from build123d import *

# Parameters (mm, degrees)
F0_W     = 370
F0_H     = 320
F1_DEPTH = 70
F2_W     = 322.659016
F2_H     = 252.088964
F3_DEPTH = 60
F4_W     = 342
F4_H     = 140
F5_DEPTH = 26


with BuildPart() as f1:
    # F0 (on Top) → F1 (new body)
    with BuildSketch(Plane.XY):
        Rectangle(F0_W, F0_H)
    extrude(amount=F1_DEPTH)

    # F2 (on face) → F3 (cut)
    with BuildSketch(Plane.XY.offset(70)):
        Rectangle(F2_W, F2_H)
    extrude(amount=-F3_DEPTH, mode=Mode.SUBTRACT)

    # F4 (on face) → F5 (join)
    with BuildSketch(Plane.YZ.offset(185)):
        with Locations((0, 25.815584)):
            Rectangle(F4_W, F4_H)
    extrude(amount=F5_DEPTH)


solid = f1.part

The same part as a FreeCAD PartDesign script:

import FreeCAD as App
import Part
import Sketcher

doc = App.newDocument("Part")
body = doc.addObject("PartDesign::Body", "Body")

# Sketch on XY plane
sketch1 = body.newObject("Sketcher::SketchObject", "Sketch")
sketch1.AttachmentSupport = (doc.getObject("XY_Plane"), [""])
sketch1.MapMode = "FlatFace"
sketch1.addGeometry([
    Part.LineSegment(App.Vector(-185, 160, 0), App.Vector(-185, -160, 0)),
    Part.LineSegment(App.Vector(-185, -160, 0), App.Vector(185, -160, 0)),
    Part.LineSegment(App.Vector(185, -160, 0), App.Vector(185, 160, 0)),
    Part.LineSegment(App.Vector(185, 160, 0), App.Vector(-185, 160, 0)),
], False)
sketch1.addConstraint([
    Sketcher.Constraint("Coincident", 0, 2, 1, 1),
    Sketcher.Constraint("Coincident", 1, 2, 2, 1),
    Sketcher.Constraint("Coincident", 2, 2, 3, 1),
    Sketcher.Constraint("Coincident", 3, 2, 0, 1),
    Sketcher.Constraint("Vertical", 0),
    Sketcher.Constraint("Horizontal", 1),
    Sketcher.Constraint("Vertical", 2),
    Sketcher.Constraint("Horizontal", 3),
    Sketcher.Constraint("Symmetric", 0, 2, 2, 2, -1, 1),
    Sketcher.Constraint("DistanceX", 1, 1, 1, 2, 370.0),
    Sketcher.Constraint("DistanceY", 0, 2, 0, 1, 320.0),
])
pad1 = body.newObject("PartDesign::Pad", "Pad")
pad1.Profile = sketch1
pad1.Length = 70

# Sketch on XY plane
sketch2 = body.newObject("Sketcher::SketchObject", "Sketch001")
sketch2.AttachmentSupport = (doc.getObject("XY_Plane"), [""])
sketch2.MapMode = "FlatFace"
sketch2.AttachmentOffset = App.Placement(App.Vector(0, 0, 70), App.Rotation())
sketch2.addGeometry([
    Part.LineSegment(App.Vector(-161, 126, 0), App.Vector(-161, -126, 0)),
    Part.LineSegment(App.Vector(-161, -126, 0), App.Vector(161, -126, 0)),
    Part.LineSegment(App.Vector(161, -126, 0), App.Vector(161, 126, 0)),
    Part.LineSegment(App.Vector(161, 126, 0), App.Vector(-161, 126, 0)),
], False)
sketch2.addConstraint([
    Sketcher.Constraint("Coincident", 0, 2, 1, 1),
    Sketcher.Constraint("Coincident", 1, 2, 2, 1),
    Sketcher.Constraint("Coincident", 2, 2, 3, 1),
    Sketcher.Constraint("Coincident", 3, 2, 0, 1),
    Sketcher.Constraint("Vertical", 0),
    Sketcher.Constraint("Horizontal", 1),
    Sketcher.Constraint("Vertical", 2),
    Sketcher.Constraint("Horizontal", 3),
    Sketcher.Constraint("Symmetric", 0, 2, 2, 2, -1, 1),
    Sketcher.Constraint("DistanceX", 1, 1, 1, 2, 322.659016),
    Sketcher.Constraint("DistanceY", 0, 2, 0, 1, 252.088964),
])
pocket1 = body.newObject("PartDesign::Pocket", "Pocket")
pocket1.Profile = sketch2
pocket1.Length = 60

# Sketch on YZ plane
sketch3 = body.newObject("Sketcher::SketchObject", "Sketch002")
sketch3.AttachmentSupport = (doc.getObject("YZ_Plane"), [""])
sketch3.MapMode = "FlatFace"
sketch3.AttachmentOffset = App.Placement(App.Vector(0, 0, 185), App.Rotation())
sketch3.addGeometry([
    Part.LineSegment(App.Vector(-171, 96, 0), App.Vector(-171, -44, 0)),
    Part.LineSegment(App.Vector(-171, -44, 0), App.Vector(171, -44, 0)),
    Part.LineSegment(App.Vector(171, -44, 0), App.Vector(171, 96, 0)),
    Part.LineSegment(App.Vector(171, 96, 0), App.Vector(-171, 96, 0)),
], False)
sketch3.addConstraint([
    Sketcher.Constraint("Coincident", 0, 2, 1, 1),
    Sketcher.Constraint("Coincident", 1, 2, 2, 1),
    Sketcher.Constraint("Coincident", 2, 2, 3, 1),
    Sketcher.Constraint("Coincident", 3, 2, 0, 1),
    Sketcher.Constraint("Vertical", 0),
    Sketcher.Constraint("Horizontal", 1),
    Sketcher.Constraint("Vertical", 2),
    Sketcher.Constraint("Horizontal", 3),
    Sketcher.Constraint("DistanceX", 1, 1, 1, 2, 342.0),
    Sketcher.Constraint("DistanceY", 0, 2, 0, 1, 140.0),
    Sketcher.Constraint("DistanceX", 0, 2, -1, 1, 171.0),
    Sketcher.Constraint("DistanceY", 0, 2, -1, 1, 44.184416),
])
pad2 = body.newObject("PartDesign::Pad", "Pad001")
pad2.Profile = sketch3
pad2.Length = 26

doc.recompute()
